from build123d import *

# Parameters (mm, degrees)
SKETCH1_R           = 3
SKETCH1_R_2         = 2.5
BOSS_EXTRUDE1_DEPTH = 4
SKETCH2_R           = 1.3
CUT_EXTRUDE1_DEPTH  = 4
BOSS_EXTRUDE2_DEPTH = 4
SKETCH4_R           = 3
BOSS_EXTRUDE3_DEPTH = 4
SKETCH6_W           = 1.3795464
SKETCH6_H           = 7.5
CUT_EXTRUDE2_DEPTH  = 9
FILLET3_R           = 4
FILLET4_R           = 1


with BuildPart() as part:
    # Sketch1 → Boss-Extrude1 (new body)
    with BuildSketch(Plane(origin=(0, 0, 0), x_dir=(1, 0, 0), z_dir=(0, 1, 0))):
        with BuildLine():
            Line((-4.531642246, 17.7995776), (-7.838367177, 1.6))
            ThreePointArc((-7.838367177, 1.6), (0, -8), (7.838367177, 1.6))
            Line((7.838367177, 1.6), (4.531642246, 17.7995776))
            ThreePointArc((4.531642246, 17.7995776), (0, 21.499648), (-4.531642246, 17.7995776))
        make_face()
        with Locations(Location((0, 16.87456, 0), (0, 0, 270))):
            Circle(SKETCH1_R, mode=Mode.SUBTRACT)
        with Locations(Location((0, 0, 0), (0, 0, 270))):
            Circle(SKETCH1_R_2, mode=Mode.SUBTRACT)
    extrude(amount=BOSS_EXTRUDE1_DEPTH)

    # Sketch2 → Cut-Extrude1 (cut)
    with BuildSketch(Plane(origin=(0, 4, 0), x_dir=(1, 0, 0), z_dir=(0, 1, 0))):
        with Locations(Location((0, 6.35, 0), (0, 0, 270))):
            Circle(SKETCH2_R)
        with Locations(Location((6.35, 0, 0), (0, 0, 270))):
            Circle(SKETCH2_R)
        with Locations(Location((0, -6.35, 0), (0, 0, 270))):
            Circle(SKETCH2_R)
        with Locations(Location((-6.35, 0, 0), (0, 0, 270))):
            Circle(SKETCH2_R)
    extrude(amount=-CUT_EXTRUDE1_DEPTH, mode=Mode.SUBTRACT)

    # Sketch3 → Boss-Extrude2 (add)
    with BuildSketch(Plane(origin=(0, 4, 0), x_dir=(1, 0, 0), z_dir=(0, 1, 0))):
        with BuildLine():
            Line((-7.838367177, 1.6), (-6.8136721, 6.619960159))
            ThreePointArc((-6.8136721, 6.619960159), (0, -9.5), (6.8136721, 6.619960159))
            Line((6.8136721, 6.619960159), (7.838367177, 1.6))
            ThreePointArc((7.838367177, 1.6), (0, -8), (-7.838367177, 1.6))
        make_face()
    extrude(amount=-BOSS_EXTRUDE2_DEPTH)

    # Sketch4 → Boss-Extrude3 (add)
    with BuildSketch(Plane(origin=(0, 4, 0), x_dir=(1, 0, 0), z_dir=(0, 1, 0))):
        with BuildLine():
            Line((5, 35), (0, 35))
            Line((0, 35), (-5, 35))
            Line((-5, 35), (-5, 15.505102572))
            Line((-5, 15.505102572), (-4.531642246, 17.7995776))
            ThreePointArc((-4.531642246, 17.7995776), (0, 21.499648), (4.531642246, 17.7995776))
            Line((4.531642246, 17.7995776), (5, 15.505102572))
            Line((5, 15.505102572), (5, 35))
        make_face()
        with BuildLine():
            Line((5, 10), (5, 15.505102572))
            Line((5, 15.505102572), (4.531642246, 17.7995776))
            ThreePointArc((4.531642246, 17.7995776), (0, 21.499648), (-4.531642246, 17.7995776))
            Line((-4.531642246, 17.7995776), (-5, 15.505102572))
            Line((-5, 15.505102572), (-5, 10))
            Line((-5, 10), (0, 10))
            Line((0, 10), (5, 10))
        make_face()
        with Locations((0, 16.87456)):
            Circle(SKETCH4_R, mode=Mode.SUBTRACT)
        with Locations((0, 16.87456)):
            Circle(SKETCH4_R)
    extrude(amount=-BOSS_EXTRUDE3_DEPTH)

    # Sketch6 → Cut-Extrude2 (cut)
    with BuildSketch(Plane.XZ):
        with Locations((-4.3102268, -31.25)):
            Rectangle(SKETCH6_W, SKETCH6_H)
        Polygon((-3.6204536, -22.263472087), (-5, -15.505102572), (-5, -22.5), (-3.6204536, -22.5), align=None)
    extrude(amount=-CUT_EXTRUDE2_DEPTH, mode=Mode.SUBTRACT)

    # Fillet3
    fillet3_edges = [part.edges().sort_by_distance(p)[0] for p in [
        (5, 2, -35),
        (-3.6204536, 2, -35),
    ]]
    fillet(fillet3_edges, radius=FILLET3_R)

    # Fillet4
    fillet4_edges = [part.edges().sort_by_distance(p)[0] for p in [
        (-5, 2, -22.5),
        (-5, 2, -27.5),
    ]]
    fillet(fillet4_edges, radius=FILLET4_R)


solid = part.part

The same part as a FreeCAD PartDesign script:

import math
import FreeCAD as App
import Part
import Sketcher

V = App.Vector
Q = App.Units.Quantity


def edges_at(feature, points):
    """Names of the edges that pass closest to the given points."""
    edges = feature.Shape.Edges
    near = lambda p: min(range(len(edges)), key=lambda i: edges[i].distToShape(Part.Vertex(*p))[0])
    return sorted({f"Edge{near(p) + 1}" for p in points})

doc = App.newDocument("Part")
body = doc.addObject("PartDesign::Body", "Body")

# Sketch on XZ plane
sketch1 = body.newObject("Sketcher::SketchObject", "Sketch")
sketch1.AttachmentSupport = (doc.getObject("XZ_Plane"), [""])
sketch1.MapMode = "FlatFace"
sketch1.addGeometry([
    Part.LineSegment(V(-4.531642, -17.799578, 0), V(-7.838367, -1.6, 0)),  # 0
    Part.ArcOfCircle(Part.Circle(V(0, 0, 0), V(0, 0, 1), 8), math.radians(-11.536959), math.radians(191.536959)),  # 1
    Part.LineSegment(V(7.838367, -1.6, 0), V(4.531642, -17.799578, 0)),  # 2
    Part.ArcOfCircle(Part.Circle(V(0, -16.87456, 0), V(0, 0, 1), 4.625088), math.radians(-168.463041), math.radians(-11.536959)),  # 3
    Part.Circle(V(0, 0, 0), V(0, 0, 1), 2.5),  # 4
    Part.Circle(V(0, -16.87456, 0), V(0, 0, 1), 3),  # 5
], False)
sketch1.addConstraint([
    Sketcher.Constraint("Tangent", 0, 2, 1, 2),
    Sketcher.Constraint("Tangent", 1, 1, 2, 1),
    Sketcher.Constraint("Tangent", 2, 2, 3, 2),
    Sketcher.Constraint("Tangent", 3, 1, 0, 1),
    Sketcher.Constraint("Coincident", 1, 3, -1, 1),
    Sketcher.Constraint("Coincident", 4, 3, -1, 1),
    Sketcher.Constraint("Coincident", 5, 3, 3, 3),
    Sketcher.Constraint("PointOnObject", 3, 3, -2),
    Sketcher.Constraint("Diameter", 4, Q("5 mm")),
    Sketcher.Constraint("Diameter", 5, Q("6 mm")),
    Sketcher.Constraint("Radius", 1, Q("8 mm")),
    Sketcher.Constraint("DistanceY", 0, 2, -1, 1, Q("1.6 mm")),
    Sketcher.Constraint("Radius", 3, Q("4.625088 mm")),
])
pad1 = body.newObject("PartDesign::Pad", "Pad")
pad1.Profile = sketch1
pad1.Length = 4
pad1.Reversed = True

# Sketch on XZ plane
sketch2 = body.newObject("Sketcher::SketchObject", "Sketch001")
sketch2.AttachmentSupport = (doc.getObject("XZ_Plane"), [""])
sketch2.MapMode = "FlatFace"
sketch2.AttachmentOffset = App.Placement(V(0, 0, -4), App.Rotation())
sketch2.addGeometry([
    Part.Circle(V(0, -6.35, 0), V(0, 0, 1), 1.3),
    Part.Circle(V(6.35, 0, 0), V(0, 0, 1), 1.3),
    Part.Circle(V(0, 6.35, 0), V(0, 0, 1), 1.3),
    Part.Circle(V(-6.35, 0, 0), V(0, 0, 1), 1.3),
], False)
sketch2.addConstraint([
    Sketcher.Constraint("Equal", 0, 1),
    Sketcher.Constraint("Equal", 1, 2),
    Sketcher.Constraint("Equal", 2, 3),
    Sketcher.Constraint("Symmetric", 0, 3, 2, 3, -1, 1),
    Sketcher.Constraint("Symmetric", 1, 3, 3, 3, -1, 1),
    Sketcher.Constraint("PointOnObject", 0, 3, -2),
    Sketcher.Constraint("PointOnObject", 1, 3, -1),
    Sketcher.Constraint("Diameter", 0, Q("2.6 mm")),
    Sketcher.Constraint("DistanceY", 0, 3, 2, 3, Q("12.7 mm")),
    Sketcher.Constraint("DistanceX", 3, 3, 1, 3, Q("12.7 mm")),
])
pocket1 = body.newObject("PartDesign::Pocket", "Pocket")
pocket1.Profile = sketch2
pocket1.Length = 4
pocket1.Reversed = True

# Sketch on XZ plane
sketch3 = body.newObject("Sketcher::SketchObject", "Sketch002")
sketch3.AttachmentSupport = (doc.getObject("XZ_Plane"), [""])
sketch3.MapMode = "FlatFace"
sketch3.AttachmentOffset = App.Placement(V(0, 0, -4), App.Rotation())
sketch3.addGeometry([
    Part.LineSegment(V(-7.838367, -1.6, 0), V(-6.813672, -6.61996, 0)),
    Part.ArcOfCircle(Part.Circle(V(0, 0, 0), V(0, 0, 1), 9.5), math.radians(-44.173857), math.radians(224.173857)),
    Part.LineSegment(V(6.813672, -6.61996, 0), V(7.838367, -1.6, 0)),
    Part.ArcOfCircle(Part.Circle(V(0, 0, 0), V(0, 0, 1), 8), math.radians(-11.536959), math.radians(191.536959)),
], False)
sketch3.addConstraint([
    Sketcher.Constraint("Coincident", 0, 2, 1, 2),
    Sketcher.Constraint("Coincident", 1, 1, 2, 1),
    Sketcher.Constraint("Tangent", 2, 2, 3, 1),
    Sketcher.Constraint("Tangent", 3, 2, 0, 1),
    Sketcher.Constraint("Coincident", 1, 3, -1, 1),
    Sketcher.Constraint("Coincident", 3, 3, -1, 1),
    Sketcher.Constraint("Horizontal", 0, 2, 1, 1),
    Sketcher.Constraint("Radius", 3, Q("8 mm")),
    Sketcher.Constraint("Radius", 1, Q("9.5 mm")),
    Sketcher.Constraint("DistanceY", 2, 2, -1, 1, Q("1.6 mm")),
])
pad2 = body.newObject("PartDesign::Pad", "Pad001")
pad2.Profile = sketch3
pad2.Length = 4

# Sketch on XZ plane
sketch4 = body.newObject("Sketcher::SketchObject", "Sketch003")
sketch4.AttachmentSupport = (doc.getObject("XZ_Plane"), [""])
sketch4.MapMode = "FlatFace"
sketch4.AttachmentOffset = App.Placement(V(0, 0, -4), App.Rotation())
sketch4.addGeometry([
    Part.LineSegment(V(5, -35, 0), V(-5, -35, 0)),
    Part.LineSegment(V(-5, -35, 0), V(-5, -10, 0)),
    Part.LineSegment(V(-5, -10, 0), V(5, -10, 0)),
    Part.LineSegment(V(5, -10, 0), V(5, -35, 0)),
], False)
sketch4.addConstraint([
    Sketcher.Constraint("Coincident", 0, 2, 1, 1),
    Sketcher.Constraint("Coincident", 1, 2, 2, 1),
    Sketcher.Constraint("Coincident", 2, 2, 3, 1),
    Sketcher.Constraint("Coincident", 3, 2, 0, 1),
    Sketcher.Constraint("Horizontal", 0),
    Sketcher.Constraint("Vertical", 1),
    Sketcher.Constraint("Horizontal", 2),
    Sketcher.Constraint("Vertical", 3),
    Sketcher.Constraint("DistanceX", 0, 2, 0, 1, Q("10 mm")),
    Sketcher.Constraint("DistanceY", 1, 1, 1, 2, Q("25 mm")),
    Sketcher.Constraint("DistanceX", 0, 2, -1, 1, Q("5 mm")),
    Sketcher.Constraint("DistanceY", 0, 2, -1, 1, Q("35 mm")),
])
pad3 = body.newObject("PartDesign::Pad", "Pad002")
pad3.Profile = sketch4
pad3.Length = 4

# Sketch on XZ plane
sketch5 = body.newObject("Sketcher::SketchObject", "Sketch004")
sketch5.AttachmentSupport = (doc.getObject("XZ_Plane"), [""])
sketch5.MapMode = "FlatFace"
sketch5.addGeometry([
    Part.LineSegment(V(-5, -27.5, 0), V(-5, -35, 0)),  # 0
    Part.LineSegment(V(-5, -35, 0), V(-3.620454, -35, 0)),  # 1
    Part.LineSegment(V(-3.620454, -35, 0), V(-3.620454, -27.5, 0)),  # 2
    Part.LineSegment(V(-3.620454, -27.5, 0), V(-5, -27.5, 0)),  # 3
    Part.LineSegment(V(-3.620454, -22.263472, 0), V(-5, -15.505103, 0)),  # 4
    Part.LineSegment(V(-5, -15.505103, 0), V(-5, -22.5, 0)),  # 5
    Part.LineSegment(V(-5, -22.5, 0), V(-3.620454, -22.5, 0)),  # 6
    Part.LineSegment(V(-3.620454, -22.5, 0), V(-3.620454, -22.263472, 0)),  # 7
], False)
sketch5.addConstraint([
    Sketcher.Constraint("Coincident", 0, 2, 1, 1),
    Sketcher.Constraint("Coincident", 1, 2, 2, 1),
    Sketcher.Constraint("Coincident", 2, 2, 3, 1),
    Sketcher.Constraint("Coincident", 3, 2, 0, 1),
    Sketcher.Constraint("Coincident", 4, 2, 5, 1),
    Sketcher.Constraint("Coincident", 5, 2, 6, 1),
    Sketcher.Constraint("Coincident", 6, 2, 7, 1),
    Sketcher.Constraint("Coincident", 7, 2, 4, 1),
    Sketcher.Constraint("Vertical", 0),
    Sketcher.Constraint("Horizontal", 1),
    Sketcher.Constraint("Vertical", 2),
    Sketcher.Constraint("Horizontal", 3),
    Sketcher.Constraint("Vertical", 5),
    Sketcher.Constraint("Horizontal", 6),
    Sketcher.Constraint("Vertical", 7),
    Sketcher.Constraint("Vertical", 3, 2, 4, 2),
    Sketcher.Constraint("Vertical", 2, 2, 6, 2),
    Sketcher.Constraint("DistanceY", 0, 2, 0, 1, Q("7.5 mm")),
    Sketcher.Constraint("DistanceX", 0, 2, -1, 1, Q("5 mm")),
    Sketcher.Constraint("DistanceY", 0, 2, -1, 1, Q("35 mm")),
    Sketcher.Constraint("DistanceY", 3, 2, 5, 2, Q("5 mm")),
    Sketcher.Constraint("DistanceX", 1, 1, 1, 2, Q("1.379546 mm")),
    Sketcher.Constraint("DistanceY", 5, 2, 5, 1, Q("6.994897 mm")),
    Sketcher.Constraint("DistanceY", 7, 1, 7, 2, Q("0.236528 mm")),
])
pocket2 = body.newObject("PartDesign::Pocket", "Pocket001")
pocket2.Profile = sketch5
pocket2.Length = 9
doc.recompute()

fillet = body.newObject("PartDesign::Fillet", "Fillet")
fillet.Base = (pocket2, edges_at(pocket2, [(5, 2, -35), (-3.62, 2, -35)]))
fillet.Radius = 4
doc.recompute()

fillet2 = body.newObject("PartDesign::Fillet", "Fillet001")
fillet2.Base = (fillet, edges_at(fillet, [(-5, 2, -22.5), (-5, 2, -27.5)]))
fillet2.Radius = 1

doc.recompute()
